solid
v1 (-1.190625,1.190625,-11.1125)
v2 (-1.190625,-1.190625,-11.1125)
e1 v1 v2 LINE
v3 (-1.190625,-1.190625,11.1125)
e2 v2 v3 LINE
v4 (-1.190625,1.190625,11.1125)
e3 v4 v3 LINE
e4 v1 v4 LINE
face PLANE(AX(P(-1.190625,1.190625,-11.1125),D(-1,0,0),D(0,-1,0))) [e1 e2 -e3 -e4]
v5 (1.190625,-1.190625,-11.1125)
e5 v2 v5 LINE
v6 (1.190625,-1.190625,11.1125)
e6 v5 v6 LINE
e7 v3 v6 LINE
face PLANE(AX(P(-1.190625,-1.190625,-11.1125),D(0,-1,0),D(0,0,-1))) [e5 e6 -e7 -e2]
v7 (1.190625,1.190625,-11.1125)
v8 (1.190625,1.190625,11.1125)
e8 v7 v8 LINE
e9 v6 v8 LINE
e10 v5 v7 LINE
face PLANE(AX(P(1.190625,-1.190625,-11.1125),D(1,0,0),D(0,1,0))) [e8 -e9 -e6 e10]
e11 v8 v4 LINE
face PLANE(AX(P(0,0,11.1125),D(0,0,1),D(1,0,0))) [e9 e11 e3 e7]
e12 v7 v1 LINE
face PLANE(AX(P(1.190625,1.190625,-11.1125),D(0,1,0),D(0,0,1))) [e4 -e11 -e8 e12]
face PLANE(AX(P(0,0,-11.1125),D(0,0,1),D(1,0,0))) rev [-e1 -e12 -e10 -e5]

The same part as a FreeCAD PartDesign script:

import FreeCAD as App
import Part
import Sketcher

V = App.Vector
Q = App.Units.Quantity

doc = App.newDocument("Part")
body = doc.addObject("PartDesign::Body", "Body")

# Sketch on XY plane
sketch1 = body.newObject("Sketcher::SketchObject", "Sketch")
sketch1.AttachmentSupport = (doc.getObject("XY_Plane"), [""])
sketch1.MapMode = "FlatFace"
sketch1.addGeometry(Part.LineSegment(V(-1.190625, 1.190625, 0), V(-1.190625, -1.190625, 0)), False)
sketch1.addGeometry(Part.LineSegment(V(-1.190625, -1.190625, 0), V(1.190625, -1.190625, 0)), False)
sketch1.addGeometry(Part.LineSegment(V(1.190625, -1.190625, 0), V(1.190625, 1.190625, 0)), False)
sketch1.addGeometry(Part.LineSegment(V(1.190625, 1.190625, 0), V(-1.190625, 1.190625, 0)), False)
sketch1.addConstraint(Sketcher.Constraint("Coincident", 0, 2, 1, 1))
sketch1.addConstraint(Sketcher.Constraint("Coincident", 1, 2, 2, 1))
sketch1.addConstraint(Sketcher.Constraint("Coincident", 2, 2, 3, 1))
sketch1.addConstraint(Sketcher.Constraint("Coincident", 3, 2, 0, 1))
sketch1.addConstraint(Sketcher.Constraint("Vertical", 0))
sketch1.addConstraint(Sketcher.Constraint("Horizontal", 1))
sketch1.addConstraint(Sketcher.Constraint("Vertical", 2))
sketch1.addConstraint(Sketcher.Constraint("Horizontal", 3))
sketch1.addConstraint(Sketcher.Constraint("Symmetric", 0, 2, 2, 2, -1, 1))
sketch1.addConstraint(Sketcher.Constraint("Equal", 3, 0))
sketch1.addConstraint(Sketcher.Constraint("DistanceX", 1, 1, 1, 2, Q("0.09375 in")))
pad1 = body.newObject("PartDesign::Pad", "Pad")
pad1.Profile = sketch1
pad1.Type = "TwoLengths"
pad1.Length = Q("0.4375 in")
pad1.Length2 = Q("0.4375 in")

doc.recompute()
